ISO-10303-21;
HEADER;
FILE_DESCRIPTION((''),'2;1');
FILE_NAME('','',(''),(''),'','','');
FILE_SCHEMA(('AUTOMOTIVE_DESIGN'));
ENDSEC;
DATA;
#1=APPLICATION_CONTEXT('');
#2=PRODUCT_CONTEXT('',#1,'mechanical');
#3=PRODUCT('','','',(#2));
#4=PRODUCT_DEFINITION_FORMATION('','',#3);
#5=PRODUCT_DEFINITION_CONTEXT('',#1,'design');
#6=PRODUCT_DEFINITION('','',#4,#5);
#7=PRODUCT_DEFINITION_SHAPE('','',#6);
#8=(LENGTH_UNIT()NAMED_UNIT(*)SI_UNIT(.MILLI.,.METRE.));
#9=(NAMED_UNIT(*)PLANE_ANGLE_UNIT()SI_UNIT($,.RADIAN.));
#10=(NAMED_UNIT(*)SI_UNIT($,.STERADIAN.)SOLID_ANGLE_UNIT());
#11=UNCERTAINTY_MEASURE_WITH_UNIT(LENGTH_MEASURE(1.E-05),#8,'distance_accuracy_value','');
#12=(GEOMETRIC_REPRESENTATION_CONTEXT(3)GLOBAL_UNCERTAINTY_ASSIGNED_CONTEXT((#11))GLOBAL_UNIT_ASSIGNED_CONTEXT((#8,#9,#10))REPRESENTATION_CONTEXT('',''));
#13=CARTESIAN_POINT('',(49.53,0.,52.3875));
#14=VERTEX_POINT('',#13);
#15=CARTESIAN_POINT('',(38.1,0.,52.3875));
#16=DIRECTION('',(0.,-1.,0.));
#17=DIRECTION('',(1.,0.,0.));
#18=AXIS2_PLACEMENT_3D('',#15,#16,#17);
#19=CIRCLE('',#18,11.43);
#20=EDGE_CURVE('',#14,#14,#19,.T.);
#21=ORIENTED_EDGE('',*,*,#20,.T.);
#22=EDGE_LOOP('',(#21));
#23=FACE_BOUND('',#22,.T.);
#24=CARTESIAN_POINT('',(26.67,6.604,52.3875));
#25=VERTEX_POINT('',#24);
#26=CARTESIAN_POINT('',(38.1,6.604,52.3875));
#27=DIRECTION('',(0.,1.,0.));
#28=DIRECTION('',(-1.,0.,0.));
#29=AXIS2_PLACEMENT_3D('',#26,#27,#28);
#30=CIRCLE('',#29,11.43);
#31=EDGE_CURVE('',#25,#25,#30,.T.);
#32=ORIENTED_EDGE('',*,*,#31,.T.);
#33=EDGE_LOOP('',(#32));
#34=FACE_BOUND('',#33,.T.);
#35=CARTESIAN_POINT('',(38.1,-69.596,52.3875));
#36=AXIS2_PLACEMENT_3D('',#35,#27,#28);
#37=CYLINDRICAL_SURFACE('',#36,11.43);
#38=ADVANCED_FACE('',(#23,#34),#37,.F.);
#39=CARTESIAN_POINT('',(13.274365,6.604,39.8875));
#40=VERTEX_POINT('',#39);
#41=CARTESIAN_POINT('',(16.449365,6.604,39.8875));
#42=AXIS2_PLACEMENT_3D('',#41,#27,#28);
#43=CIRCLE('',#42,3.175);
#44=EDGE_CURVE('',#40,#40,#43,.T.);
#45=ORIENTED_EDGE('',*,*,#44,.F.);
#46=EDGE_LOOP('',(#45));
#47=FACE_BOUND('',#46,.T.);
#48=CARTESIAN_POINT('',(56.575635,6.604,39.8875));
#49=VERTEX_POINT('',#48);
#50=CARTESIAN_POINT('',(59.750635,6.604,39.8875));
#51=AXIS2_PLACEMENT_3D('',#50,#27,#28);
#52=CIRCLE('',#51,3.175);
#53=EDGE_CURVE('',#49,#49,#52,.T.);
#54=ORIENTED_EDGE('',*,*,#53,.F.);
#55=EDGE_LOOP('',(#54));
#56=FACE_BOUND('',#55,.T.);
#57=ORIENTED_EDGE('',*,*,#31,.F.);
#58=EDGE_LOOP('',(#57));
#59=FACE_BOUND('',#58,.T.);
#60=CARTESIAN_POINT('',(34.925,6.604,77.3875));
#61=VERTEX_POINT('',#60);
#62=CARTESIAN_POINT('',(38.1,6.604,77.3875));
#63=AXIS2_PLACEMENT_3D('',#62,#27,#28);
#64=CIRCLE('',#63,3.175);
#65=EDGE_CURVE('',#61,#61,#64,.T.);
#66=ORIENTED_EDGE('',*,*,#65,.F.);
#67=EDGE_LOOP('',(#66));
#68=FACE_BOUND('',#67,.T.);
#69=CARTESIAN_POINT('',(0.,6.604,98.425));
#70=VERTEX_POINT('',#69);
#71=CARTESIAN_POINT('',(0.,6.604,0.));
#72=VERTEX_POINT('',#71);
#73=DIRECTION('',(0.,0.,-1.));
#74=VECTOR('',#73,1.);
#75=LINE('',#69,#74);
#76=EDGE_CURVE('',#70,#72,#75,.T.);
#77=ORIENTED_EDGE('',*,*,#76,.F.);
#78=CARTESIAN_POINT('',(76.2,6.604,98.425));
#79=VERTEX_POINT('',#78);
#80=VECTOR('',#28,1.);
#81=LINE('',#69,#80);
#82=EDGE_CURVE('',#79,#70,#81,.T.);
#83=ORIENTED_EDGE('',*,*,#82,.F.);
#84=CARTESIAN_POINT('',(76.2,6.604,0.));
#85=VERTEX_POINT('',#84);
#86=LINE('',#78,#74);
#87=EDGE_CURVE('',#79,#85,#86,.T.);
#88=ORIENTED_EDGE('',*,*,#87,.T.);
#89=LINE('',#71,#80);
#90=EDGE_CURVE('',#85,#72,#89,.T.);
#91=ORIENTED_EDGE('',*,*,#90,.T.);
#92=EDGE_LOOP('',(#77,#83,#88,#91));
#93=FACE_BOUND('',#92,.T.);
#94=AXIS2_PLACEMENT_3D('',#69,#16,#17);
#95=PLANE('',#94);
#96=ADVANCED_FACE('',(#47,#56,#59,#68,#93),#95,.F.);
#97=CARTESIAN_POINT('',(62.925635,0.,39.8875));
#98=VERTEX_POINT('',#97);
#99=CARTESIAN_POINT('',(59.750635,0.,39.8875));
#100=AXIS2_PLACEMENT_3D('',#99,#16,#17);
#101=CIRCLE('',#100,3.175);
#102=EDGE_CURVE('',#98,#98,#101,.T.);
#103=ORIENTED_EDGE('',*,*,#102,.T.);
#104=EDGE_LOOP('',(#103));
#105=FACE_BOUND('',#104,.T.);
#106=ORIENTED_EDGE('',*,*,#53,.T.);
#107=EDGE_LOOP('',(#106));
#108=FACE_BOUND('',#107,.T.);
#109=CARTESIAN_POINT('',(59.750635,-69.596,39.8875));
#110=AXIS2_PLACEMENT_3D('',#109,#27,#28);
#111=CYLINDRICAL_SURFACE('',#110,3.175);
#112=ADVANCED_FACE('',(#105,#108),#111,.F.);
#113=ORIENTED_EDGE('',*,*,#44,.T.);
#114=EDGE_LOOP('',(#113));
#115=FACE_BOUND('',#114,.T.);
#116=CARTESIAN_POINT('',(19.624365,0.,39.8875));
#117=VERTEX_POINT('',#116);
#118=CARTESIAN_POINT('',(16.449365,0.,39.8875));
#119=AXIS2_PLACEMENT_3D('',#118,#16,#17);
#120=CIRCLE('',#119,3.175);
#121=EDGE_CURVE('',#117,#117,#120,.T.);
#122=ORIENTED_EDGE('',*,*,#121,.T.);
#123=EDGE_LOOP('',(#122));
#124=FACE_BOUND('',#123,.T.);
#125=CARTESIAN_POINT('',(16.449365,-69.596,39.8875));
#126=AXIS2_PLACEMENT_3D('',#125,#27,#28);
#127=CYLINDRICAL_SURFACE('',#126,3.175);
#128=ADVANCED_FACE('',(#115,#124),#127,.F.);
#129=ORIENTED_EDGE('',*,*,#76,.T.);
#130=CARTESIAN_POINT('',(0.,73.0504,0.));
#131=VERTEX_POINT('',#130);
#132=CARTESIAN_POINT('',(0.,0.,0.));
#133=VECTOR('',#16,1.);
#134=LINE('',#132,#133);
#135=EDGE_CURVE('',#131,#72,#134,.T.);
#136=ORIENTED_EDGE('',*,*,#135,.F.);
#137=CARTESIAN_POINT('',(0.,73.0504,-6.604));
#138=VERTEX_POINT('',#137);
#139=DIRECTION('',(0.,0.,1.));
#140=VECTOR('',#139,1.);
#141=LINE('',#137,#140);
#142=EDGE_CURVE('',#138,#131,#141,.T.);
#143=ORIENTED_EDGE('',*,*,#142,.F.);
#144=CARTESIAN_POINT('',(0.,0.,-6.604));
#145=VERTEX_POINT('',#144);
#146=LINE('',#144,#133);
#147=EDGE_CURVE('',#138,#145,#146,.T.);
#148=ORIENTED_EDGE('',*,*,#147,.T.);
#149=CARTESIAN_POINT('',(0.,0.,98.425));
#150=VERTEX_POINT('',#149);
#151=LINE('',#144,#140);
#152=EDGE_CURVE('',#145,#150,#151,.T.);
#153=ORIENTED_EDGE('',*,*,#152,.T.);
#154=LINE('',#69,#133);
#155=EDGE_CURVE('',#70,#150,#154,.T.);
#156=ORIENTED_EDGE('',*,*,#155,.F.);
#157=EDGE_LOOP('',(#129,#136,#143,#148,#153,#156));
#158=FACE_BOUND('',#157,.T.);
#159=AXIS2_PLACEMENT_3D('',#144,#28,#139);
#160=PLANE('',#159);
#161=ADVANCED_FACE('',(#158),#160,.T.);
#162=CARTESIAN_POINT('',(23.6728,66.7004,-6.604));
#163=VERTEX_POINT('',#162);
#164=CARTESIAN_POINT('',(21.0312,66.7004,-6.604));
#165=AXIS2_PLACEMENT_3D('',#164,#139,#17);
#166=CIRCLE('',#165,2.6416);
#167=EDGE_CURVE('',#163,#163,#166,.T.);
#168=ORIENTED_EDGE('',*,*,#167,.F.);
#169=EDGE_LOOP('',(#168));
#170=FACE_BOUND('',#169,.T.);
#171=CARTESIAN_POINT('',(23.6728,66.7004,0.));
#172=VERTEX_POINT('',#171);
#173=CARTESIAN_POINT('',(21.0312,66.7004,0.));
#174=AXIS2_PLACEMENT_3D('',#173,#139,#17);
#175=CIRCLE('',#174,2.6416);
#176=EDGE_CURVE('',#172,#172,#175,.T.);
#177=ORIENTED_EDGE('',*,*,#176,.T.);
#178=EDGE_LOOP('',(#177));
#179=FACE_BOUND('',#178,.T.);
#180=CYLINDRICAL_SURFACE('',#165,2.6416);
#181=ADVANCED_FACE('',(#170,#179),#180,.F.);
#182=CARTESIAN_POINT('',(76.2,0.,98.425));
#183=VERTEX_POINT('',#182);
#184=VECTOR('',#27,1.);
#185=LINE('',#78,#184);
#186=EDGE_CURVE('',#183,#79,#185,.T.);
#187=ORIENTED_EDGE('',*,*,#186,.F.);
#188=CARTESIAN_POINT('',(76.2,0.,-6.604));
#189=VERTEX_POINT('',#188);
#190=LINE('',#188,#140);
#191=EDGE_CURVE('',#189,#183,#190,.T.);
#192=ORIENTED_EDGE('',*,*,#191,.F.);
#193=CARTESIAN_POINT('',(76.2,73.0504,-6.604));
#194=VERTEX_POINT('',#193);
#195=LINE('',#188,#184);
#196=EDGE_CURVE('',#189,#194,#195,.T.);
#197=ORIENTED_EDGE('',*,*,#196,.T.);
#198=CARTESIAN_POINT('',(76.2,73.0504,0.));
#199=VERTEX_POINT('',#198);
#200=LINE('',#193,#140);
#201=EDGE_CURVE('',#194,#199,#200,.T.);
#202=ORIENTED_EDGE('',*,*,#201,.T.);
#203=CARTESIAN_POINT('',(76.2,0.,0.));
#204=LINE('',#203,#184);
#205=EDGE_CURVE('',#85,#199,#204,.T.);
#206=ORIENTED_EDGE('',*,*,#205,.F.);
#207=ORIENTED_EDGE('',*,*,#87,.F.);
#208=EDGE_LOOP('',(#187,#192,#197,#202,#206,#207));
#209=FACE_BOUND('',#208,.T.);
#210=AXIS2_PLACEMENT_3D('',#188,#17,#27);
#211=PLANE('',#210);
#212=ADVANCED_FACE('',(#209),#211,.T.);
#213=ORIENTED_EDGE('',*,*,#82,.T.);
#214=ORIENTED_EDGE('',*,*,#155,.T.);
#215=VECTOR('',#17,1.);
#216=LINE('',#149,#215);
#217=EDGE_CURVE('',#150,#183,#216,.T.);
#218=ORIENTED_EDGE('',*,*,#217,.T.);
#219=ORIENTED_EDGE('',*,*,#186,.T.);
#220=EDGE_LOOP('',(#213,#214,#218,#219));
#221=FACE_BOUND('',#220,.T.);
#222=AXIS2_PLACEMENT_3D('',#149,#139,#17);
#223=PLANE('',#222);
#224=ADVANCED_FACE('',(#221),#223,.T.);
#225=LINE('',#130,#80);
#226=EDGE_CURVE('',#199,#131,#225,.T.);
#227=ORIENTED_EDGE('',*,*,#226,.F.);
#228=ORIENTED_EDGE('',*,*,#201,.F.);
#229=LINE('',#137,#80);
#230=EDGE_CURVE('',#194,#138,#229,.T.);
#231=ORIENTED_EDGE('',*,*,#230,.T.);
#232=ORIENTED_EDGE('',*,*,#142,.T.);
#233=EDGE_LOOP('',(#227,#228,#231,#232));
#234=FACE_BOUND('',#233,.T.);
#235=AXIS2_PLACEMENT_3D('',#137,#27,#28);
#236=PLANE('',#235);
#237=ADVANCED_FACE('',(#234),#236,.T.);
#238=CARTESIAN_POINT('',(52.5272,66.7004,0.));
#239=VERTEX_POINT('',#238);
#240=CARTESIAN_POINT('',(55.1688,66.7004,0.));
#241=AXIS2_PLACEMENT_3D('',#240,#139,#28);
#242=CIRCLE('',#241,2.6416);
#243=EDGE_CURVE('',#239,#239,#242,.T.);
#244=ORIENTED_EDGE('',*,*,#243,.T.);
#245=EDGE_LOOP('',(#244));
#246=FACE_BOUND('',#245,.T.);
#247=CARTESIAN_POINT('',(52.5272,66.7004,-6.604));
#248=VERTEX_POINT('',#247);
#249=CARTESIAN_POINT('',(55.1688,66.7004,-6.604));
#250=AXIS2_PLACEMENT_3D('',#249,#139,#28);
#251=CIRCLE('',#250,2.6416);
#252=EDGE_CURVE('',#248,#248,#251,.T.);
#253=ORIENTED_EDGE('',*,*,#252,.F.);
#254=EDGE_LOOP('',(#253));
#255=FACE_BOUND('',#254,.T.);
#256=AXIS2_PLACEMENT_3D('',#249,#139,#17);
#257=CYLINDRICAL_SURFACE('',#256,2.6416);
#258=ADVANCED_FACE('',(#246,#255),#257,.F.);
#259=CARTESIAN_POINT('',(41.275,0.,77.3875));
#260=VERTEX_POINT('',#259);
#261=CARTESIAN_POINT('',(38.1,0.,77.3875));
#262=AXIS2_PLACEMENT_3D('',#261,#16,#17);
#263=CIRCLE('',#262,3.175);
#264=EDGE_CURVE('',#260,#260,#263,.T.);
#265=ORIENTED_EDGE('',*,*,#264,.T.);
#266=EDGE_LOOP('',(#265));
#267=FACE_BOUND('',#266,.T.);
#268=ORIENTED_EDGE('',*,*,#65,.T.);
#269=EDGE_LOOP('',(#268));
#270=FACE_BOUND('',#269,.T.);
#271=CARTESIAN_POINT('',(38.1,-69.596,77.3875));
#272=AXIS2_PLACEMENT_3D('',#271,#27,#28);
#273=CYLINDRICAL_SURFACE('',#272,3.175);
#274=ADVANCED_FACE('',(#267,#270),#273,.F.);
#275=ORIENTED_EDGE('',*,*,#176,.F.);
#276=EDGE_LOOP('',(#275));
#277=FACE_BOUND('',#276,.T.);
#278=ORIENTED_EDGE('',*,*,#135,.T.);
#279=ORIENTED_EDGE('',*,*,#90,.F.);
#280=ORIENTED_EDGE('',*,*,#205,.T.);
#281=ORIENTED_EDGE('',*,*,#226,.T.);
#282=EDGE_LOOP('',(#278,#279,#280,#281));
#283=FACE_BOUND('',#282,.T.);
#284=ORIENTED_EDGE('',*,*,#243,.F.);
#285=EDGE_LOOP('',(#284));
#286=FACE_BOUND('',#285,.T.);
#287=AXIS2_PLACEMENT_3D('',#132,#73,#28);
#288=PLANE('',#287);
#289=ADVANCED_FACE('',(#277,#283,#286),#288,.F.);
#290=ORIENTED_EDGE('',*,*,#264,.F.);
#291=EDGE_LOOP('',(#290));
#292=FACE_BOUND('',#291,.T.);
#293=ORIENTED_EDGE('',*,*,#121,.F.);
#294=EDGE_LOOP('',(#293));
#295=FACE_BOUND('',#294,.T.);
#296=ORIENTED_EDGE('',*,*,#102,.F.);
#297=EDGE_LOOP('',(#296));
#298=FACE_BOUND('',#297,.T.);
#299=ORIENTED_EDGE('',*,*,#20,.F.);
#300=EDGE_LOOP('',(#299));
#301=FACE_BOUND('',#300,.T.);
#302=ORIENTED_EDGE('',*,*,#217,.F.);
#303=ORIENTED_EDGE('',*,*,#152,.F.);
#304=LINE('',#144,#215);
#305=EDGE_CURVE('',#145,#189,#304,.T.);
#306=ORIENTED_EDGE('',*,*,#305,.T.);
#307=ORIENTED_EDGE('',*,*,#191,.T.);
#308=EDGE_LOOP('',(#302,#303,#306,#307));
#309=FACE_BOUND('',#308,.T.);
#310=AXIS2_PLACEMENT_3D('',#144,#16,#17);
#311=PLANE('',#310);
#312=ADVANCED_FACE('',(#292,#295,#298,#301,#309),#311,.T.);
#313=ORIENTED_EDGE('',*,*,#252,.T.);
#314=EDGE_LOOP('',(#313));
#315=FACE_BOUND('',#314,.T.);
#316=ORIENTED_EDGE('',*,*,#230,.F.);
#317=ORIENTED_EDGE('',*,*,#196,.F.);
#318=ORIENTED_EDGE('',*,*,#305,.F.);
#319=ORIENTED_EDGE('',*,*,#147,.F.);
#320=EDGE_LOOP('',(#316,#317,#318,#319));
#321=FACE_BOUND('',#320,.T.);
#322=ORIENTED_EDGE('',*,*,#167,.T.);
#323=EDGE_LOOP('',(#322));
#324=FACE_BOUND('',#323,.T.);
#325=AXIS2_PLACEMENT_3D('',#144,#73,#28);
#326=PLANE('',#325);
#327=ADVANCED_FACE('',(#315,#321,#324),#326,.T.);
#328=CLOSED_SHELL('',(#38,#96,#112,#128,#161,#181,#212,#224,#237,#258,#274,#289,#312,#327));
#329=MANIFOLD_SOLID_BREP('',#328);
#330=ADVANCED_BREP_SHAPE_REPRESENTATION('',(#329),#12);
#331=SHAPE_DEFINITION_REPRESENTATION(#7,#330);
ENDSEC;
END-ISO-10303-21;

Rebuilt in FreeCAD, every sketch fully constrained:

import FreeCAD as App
import Part
import Sketcher
from FreeCAD import Vector
Q = App.Units.Quantity


def add_polygon(sketch, points):
    """Adds a closed chain of lines whose ends are joined by coincident constraints."""
    first, n = sketch.GeometryCount, len(points)
    for a, b in zip(points, points[1:] + points[:1]):
        sketch.addGeometry(Part.LineSegment(App.Vector(*a, 0), App.Vector(*b, 0)), False)
    for i in range(n):
        sketch.addConstraint(Sketcher.Constraint("Coincident", first + i, 2, first + (i + 1) % n, 1))

doc = App.newDocument("Part")
body = doc.addObject("PartDesign::Body", "Body")

sketch1 = doc.addObject("Sketcher::SketchObject", "Sketch")
body.addObject(sketch1)
sketch1.AttachmentSupport = (doc.XY_Plane, [""])
sketch1.MapMode = "FlatFace"
add_polygon(sketch1, [(0, 73.1), (0, 0), (76.2, 0), (76.2, 73.1)])
sketch1.addGeometry(Part.Circle(Vector(21, 66.7, 0), Vector(0, 0, 1), 2.6), False)
sketch1.addGeometry(Part.Circle(Vector(55.2, 66.7, 0), Vector(0, 0, 1), 2.6), False)
sketch1.addConstraint([
    Sketcher.Constraint("Vertical", 0),
    Sketcher.Constraint("Horizontal", 1),
    Sketcher.Constraint("Vertical", 2),
    Sketcher.Constraint("Horizontal", 3),
    Sketcher.Constraint("Coincident", 0, 2, -1, 1),
    Sketcher.Constraint("Equal", 4, 5),
    Sketcher.Constraint("Horizontal", 4, 3, 5, 3),
    Sketcher.Constraint("DistanceX", 1, 1, 1, 2, Q("3 in")),
    Sketcher.Constraint("Diameter", 4, Q("0.208 in")),
    Sketcher.Constraint("DistanceY", 0, 2, 0, 1, Q("2.876 in")),
    Sketcher.Constraint("DistanceY", 5, 3, 2, 2, Q("0.25 in")),
    Sketcher.Constraint("DistanceX", -1, 1, 4, 3, Q("0.828 in")),
    Sketcher.Constraint("DistanceX", -1, 1, 5, 3, Q("2.172 in")),
])
pad1 = doc.addObject("PartDesign::Pad", "Pad")
body.addObject(pad1)
pad1.Profile = sketch1
pad1.Length = Q("0.26 in")
pad1.Reversed = True

sketch2 = doc.addObject("Sketcher::SketchObject", "Sketch001")
body.addObject(sketch2)
sketch2.AttachmentSupport = (doc.XY_Plane, [""])
sketch2.MapMode = "FlatFace"
add_polygon(sketch2, [(0, 7), (0, 0), (76, 0), (76, 7)])
sketch2.addConstraint([
    Sketcher.Constraint("Vertical", 0),
    Sketcher.Constraint("Horizontal", 1),
    Sketcher.Constraint("Vertical", 2),
    Sketcher.Constraint("Horizontal", 3),
    Sketcher.Constraint("Coincident", 0, 2, -1, 1),
    Sketcher.Constraint("DistanceX", 1, 1, 1, 2, Q("3 in")),
    Sketcher.Constraint("DistanceY", 0, 2, 0, 1, Q("0.26 in")),
])
pad2 = doc.addObject("PartDesign::Pad", "Pad001")
body.addObject(pad2)
pad2.Profile = sketch2
pad2.Length = Q("3.875 in")

sketch3 = doc.addObject("Sketcher::SketchObject", "Sketch002")
body.addObject(sketch3)
sketch3.AttachmentSupport = (doc.XZ_Plane, [""])
sketch3.MapMode = "FlatFace"
sketch3.AttachmentOffset = App.Placement(Vector(0, 0, -0.26 * 25.4), App.Rotation())
sketch3.addGeometry([
    Part.Circle(Vector(38.1, 52.4, 0), Vector(0, 0, 1), 11.4),
    Part.Circle(Vector(38.1, 77.4, 0), Vector(0, 0, 1), 3.2),
    Part.Circle(Vector(16.4, 39.9, 0), Vector(0, 0, 1), 3.2),
    Part.Circle(Vector(59.8, 39.9, 0), Vector(0, 0, 1), 3.2),
], False)
sketch3.addConstraint([
    Sketcher.Constraint("Equal", 1, 2),
    Sketcher.Constraint("Equal", 2, 3),
    Sketcher.Constraint("Horizontal", 2, 3, 3, 3),
    Sketcher.Constraint("Vertical", 0, 3, 1, 3),
    Sketcher.Constraint("Diameter", 0, Q("0.9 in")),
    Sketcher.Constraint("Diameter", 1, Q("0.25 in")),
    Sketcher.Constraint("DistanceX", -1, 1, 0, 3, Q("1.5 in")),
    Sketcher.Constraint("DistanceY", -1, 1, 0, 3, Q("2.0625 in")),
    Sketcher.Constraint("DistanceY", -1, 1, 1, 3, Q("77.3875 mm")),
    Sketcher.Constraint("DistanceY", -1, 1, 2, 3, Q("39.8875 mm")),
    Sketcher.Constraint("DistanceX", 2, 3, 3, 3, Q("43.30127 mm")),
    Sketcher.Constraint("DistanceX", -1, 1, 2, 3, Q("16.449365 mm")),
])
pocket1 = doc.addObject("PartDesign::Pocket", "Pocket")
body.addObject(pocket1)
pocket1.Profile = sketch3
pocket1.Length = Q("3 in")
pocket1.Reversed = True

doc.recompute()
